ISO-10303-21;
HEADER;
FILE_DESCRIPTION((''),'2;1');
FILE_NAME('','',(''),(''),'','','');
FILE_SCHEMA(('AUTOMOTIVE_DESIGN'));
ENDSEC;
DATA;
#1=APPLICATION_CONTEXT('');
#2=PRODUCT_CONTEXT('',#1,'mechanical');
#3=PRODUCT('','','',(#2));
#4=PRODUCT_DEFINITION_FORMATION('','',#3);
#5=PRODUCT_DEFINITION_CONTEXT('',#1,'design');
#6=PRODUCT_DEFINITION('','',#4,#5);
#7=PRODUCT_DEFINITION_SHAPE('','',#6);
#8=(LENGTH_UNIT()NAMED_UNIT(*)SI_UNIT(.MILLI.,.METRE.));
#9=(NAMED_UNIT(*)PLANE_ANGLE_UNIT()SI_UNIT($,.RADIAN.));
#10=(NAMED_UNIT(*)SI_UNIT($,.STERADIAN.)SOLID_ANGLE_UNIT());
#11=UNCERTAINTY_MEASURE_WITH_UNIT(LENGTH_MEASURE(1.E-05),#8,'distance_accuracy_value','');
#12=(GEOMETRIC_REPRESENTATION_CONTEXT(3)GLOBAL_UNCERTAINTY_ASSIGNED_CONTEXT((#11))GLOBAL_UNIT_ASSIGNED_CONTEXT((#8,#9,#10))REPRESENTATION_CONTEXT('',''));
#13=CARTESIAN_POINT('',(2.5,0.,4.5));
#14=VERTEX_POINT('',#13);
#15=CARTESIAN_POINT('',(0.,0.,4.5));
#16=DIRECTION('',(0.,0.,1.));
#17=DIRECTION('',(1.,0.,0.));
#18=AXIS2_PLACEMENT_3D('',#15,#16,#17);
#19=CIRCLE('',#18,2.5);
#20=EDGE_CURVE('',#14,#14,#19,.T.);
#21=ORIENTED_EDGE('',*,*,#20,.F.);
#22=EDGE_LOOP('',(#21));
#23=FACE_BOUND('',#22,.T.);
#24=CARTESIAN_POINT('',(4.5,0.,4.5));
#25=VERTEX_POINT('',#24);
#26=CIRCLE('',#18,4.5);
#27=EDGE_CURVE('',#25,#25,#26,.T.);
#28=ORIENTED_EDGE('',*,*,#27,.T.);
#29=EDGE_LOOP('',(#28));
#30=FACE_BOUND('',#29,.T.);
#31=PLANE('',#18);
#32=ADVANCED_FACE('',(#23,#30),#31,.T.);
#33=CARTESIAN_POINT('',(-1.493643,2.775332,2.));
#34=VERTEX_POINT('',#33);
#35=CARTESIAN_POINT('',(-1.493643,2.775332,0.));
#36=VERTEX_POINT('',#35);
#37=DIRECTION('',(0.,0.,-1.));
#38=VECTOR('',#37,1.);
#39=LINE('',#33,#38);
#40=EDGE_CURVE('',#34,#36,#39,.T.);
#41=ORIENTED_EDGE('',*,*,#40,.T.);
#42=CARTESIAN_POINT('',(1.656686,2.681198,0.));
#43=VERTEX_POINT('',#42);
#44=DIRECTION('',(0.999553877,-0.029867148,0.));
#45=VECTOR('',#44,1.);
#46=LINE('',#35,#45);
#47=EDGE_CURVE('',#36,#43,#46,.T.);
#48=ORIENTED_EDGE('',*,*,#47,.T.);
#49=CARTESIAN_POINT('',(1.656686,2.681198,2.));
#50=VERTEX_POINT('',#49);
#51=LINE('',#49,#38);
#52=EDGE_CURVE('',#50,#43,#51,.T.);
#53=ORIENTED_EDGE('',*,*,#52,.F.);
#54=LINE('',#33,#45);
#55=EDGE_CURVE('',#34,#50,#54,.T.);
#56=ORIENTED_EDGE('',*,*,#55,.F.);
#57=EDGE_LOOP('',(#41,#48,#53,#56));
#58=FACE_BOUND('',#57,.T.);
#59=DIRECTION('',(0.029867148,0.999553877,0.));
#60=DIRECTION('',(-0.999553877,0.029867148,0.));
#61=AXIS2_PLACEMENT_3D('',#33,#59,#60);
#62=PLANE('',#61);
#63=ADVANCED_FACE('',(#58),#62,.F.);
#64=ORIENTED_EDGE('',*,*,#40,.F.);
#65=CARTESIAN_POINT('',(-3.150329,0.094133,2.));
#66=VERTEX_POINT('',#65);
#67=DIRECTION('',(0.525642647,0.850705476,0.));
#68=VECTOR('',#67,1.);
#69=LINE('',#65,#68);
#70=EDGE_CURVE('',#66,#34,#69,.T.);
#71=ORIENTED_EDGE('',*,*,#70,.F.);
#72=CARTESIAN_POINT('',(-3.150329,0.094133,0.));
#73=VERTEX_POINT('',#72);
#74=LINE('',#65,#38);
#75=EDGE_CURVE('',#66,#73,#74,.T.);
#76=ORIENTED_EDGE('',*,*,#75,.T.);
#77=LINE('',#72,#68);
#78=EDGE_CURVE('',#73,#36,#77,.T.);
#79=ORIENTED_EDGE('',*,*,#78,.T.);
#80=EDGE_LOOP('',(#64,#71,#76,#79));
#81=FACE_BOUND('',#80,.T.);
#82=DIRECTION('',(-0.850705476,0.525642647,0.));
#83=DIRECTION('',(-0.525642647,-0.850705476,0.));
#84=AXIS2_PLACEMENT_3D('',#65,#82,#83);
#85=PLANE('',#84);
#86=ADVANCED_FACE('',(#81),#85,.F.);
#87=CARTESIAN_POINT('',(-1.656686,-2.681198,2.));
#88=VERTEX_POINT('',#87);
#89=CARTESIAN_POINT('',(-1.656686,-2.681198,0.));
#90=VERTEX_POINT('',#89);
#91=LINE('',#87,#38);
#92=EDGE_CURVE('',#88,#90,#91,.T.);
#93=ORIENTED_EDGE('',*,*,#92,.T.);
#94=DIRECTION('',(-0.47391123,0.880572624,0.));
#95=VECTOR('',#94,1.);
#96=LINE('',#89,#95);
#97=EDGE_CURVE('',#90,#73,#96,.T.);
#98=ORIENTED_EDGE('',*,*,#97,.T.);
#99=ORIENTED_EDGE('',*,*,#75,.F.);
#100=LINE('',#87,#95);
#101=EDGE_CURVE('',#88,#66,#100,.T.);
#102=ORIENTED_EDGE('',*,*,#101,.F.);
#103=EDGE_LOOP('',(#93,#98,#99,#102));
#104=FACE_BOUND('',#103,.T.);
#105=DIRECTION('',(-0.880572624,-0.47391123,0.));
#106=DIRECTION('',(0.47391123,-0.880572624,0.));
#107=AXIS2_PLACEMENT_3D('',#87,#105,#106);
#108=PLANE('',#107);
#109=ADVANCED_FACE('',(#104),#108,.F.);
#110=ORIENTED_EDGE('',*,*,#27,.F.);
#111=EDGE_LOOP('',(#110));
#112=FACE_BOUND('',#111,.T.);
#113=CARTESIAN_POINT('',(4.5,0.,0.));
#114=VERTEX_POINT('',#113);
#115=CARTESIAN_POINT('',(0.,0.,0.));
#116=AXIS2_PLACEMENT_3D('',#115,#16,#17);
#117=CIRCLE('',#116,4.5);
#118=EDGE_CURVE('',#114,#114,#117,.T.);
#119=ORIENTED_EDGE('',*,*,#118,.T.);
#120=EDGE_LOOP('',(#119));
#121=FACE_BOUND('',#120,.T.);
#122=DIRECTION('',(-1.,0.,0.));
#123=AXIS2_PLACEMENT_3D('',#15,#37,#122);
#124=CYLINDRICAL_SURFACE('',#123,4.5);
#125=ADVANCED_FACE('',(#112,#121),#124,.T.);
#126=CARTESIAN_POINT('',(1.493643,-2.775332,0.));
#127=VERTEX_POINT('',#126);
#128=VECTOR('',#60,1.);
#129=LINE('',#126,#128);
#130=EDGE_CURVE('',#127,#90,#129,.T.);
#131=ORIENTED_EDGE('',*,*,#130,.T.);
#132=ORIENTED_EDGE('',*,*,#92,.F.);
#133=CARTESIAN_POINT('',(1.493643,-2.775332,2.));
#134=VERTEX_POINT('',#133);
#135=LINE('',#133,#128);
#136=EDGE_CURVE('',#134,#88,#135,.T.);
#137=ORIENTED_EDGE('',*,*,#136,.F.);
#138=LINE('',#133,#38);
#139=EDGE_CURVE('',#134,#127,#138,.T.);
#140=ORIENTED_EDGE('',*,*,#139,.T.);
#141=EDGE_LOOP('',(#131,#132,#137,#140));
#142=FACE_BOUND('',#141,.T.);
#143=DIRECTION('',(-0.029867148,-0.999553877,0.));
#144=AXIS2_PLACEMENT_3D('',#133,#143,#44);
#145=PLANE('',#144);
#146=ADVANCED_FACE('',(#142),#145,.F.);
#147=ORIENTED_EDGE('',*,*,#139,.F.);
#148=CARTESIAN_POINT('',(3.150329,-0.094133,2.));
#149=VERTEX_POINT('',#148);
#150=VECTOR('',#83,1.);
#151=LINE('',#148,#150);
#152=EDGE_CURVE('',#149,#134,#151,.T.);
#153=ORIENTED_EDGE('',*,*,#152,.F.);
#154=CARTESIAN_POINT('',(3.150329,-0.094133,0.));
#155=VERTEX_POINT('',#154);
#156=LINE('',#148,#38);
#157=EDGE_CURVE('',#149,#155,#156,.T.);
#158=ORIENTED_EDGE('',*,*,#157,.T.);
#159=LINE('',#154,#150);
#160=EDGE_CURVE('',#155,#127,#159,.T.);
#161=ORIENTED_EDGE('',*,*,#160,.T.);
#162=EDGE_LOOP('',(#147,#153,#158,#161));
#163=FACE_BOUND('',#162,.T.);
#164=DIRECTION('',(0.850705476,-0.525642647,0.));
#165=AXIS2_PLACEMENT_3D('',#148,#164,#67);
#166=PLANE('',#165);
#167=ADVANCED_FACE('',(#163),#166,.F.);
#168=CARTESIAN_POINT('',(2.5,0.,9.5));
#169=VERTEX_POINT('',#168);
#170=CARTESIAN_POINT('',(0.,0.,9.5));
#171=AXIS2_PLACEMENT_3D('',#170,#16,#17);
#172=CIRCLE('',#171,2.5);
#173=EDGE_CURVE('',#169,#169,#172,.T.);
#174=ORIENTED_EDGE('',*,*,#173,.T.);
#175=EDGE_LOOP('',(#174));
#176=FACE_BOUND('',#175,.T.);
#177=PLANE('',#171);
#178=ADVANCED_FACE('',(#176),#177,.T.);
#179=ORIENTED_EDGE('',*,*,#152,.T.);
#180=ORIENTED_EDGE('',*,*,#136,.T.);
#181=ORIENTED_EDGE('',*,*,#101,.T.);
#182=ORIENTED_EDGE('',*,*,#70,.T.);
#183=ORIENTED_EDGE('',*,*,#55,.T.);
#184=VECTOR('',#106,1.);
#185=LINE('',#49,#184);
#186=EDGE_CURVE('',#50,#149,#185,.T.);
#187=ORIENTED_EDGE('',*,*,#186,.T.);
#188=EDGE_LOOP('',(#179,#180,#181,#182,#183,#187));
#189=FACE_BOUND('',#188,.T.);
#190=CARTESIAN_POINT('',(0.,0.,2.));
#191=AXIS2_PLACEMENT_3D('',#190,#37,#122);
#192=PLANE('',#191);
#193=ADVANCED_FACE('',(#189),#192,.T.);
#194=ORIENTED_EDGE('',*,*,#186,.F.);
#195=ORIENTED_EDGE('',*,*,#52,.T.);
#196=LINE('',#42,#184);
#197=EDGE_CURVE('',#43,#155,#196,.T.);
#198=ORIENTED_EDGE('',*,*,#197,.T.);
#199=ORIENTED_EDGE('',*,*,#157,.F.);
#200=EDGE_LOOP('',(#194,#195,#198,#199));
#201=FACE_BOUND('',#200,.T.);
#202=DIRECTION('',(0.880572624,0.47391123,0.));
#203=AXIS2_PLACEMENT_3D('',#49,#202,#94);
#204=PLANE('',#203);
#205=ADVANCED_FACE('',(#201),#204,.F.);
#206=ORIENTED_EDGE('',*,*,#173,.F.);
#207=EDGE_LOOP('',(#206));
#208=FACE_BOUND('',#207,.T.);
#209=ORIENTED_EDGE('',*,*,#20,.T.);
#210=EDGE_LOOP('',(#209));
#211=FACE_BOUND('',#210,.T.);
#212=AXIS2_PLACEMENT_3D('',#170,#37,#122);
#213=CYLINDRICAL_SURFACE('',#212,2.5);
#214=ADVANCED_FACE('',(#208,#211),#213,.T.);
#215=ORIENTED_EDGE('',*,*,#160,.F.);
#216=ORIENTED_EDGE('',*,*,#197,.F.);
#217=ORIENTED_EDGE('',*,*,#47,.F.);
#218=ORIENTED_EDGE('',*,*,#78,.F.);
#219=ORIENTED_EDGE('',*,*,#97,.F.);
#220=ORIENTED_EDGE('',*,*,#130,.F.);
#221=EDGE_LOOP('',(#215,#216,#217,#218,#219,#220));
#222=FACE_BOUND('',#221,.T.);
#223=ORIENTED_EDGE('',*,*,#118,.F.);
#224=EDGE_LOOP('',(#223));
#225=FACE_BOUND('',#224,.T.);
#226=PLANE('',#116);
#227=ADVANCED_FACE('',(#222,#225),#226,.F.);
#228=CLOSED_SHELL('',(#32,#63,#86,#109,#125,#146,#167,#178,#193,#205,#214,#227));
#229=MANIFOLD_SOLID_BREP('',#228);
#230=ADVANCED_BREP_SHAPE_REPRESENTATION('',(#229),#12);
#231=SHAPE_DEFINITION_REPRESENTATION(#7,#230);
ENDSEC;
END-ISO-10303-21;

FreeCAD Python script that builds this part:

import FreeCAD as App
import Part
import Sketcher


def add_polygon(sketch, points):
    """Adds a closed chain of lines whose ends are joined by coincident constraints."""
    first, n = sketch.GeometryCount, len(points)
    for a, b in zip(points, points[1:] + points[:1]):
        sketch.addGeometry(Part.LineSegment(App.Vector(*a, 0), App.Vector(*b, 0)), False)
    for i in range(n):
        sketch.addConstraint(Sketcher.Constraint("Coincident", first + i, 2, first + (i + 1) % n, 1))

doc = App.newDocument("Part")
params = doc.addObject("Spreadsheet::Sheet", "Params")
for row, (alias, value) in enumerate([
    ("sketch1_diameter", "9 mm"),
    ("pad1_length", "4.5 mm"),
    ("pocket1_length", "2 mm"),
    ("sketch3_diameter", "5 mm"),
    ("pad2_length", "5 mm"),
], start=1):
    params.set(f"A{row}", alias)
    params.set(f"B{row}", "=" + value)
    params.setAlias(f"B{row}", alias)

body = doc.addObject("PartDesign::Body", "Body")

sketch1 = body.newObject("Sketcher::SketchObject", "Sketch")
sketch1.AttachmentSupport = (doc.getObject("XY_Plane"), [""])
sketch1.MapMode = "FlatFace"
sketch1.addGeometry(Part.Circle(App.Vector(0, 0, 0), App.Vector(0, 0, 1), 4.5), False)
sketch1.addConstraint(Sketcher.Constraint("Coincident", 0, 3, -1, 1))
sketch1.addConstraint(Sketcher.Constraint("Diameter", 0, 9.0))
sketch1.setExpression("Constraints[1]", "Params.sketch1_diameter")
pad1 = body.newObject("PartDesign::Pad", "Pad")
pad1.Profile = sketch1
pad1.setExpression("Length", "Params.pad1_length")

sketch2 = body.newObject("Sketcher::SketchObject", "Sketch001")
sketch2.AttachmentSupport = (doc.getObject("XY_Plane"), [""])
sketch2.MapMode = "FlatFace"
add_polygon(sketch2, [(-3.2, 0.1), (-1.5, 2.8), (1.7, 2.7), (3.2, -0.1), (1.5, -2.8), (-1.7, -2.7)])
sketch2.addConstraint(Sketcher.Constraint("Symmetric", 0, 2, 3, 2, -1, 1))
sketch2.addConstraint(Sketcher.Constraint("Symmetric", 1, 2, 4, 2, -1, 1))
sketch2.addConstraint(Sketcher.Constraint("Symmetric", 2, 2, 5, 2, -1, 1))
sketch2.addConstraint(Sketcher.Constraint("Equal", 0, 1))
sketch2.addConstraint(Sketcher.Constraint("Equal", 1, 2))
sketch2.addConstraint(Sketcher.Constraint("DistanceY", -1, 1, 1, 2, 2.681198))
sketch2.addConstraint(Sketcher.Constraint("DistanceY", 3, 2, 2, 2, 2.681198))
sketch2.addConstraint(Sketcher.Constraint("DistanceY", -1, 1, 0, 2, 2.775332))
sketch2.addConstraint(Sketcher.Constraint("DistanceX", -1, 1, 2, 2, 3.150329))
pocket1 = body.newObject("PartDesign::Pocket", "Pocket")
pocket1.Profile = sketch2
pocket1.setExpression("Length", "Params.pocket1_length")
pocket1.Reversed = True

sketch3 = body.newObject("Sketcher::SketchObject", "Sketch002")
sketch3.AttachmentSupport = (doc.getObject("XY_Plane"), [""])
sketch3.MapMode = "FlatFace"
sketch3.AttachmentOffset = App.Placement(App.Vector(0, 0, 4.5), App.Rotation())
sketch3.addGeometry(Part.Circle(App.Vector(0, 0, 0), App.Vector(0, 0, 1), 2.5), False)
sketch3.addConstraint(Sketcher.Constraint("Coincident", 0, 3, -1, 1))
sketch3.addConstraint(Sketcher.Constraint("Diameter", 0, 5.0))
sketch3.setExpression("Constraints[1]", "Params.sketch3_diameter")
pad2 = body.newObject("PartDesign::Pad", "Pad001")
pad2.Profile = sketch3
pad2.setExpression("Length", "Params.pad2_length")

doc.recompute()
